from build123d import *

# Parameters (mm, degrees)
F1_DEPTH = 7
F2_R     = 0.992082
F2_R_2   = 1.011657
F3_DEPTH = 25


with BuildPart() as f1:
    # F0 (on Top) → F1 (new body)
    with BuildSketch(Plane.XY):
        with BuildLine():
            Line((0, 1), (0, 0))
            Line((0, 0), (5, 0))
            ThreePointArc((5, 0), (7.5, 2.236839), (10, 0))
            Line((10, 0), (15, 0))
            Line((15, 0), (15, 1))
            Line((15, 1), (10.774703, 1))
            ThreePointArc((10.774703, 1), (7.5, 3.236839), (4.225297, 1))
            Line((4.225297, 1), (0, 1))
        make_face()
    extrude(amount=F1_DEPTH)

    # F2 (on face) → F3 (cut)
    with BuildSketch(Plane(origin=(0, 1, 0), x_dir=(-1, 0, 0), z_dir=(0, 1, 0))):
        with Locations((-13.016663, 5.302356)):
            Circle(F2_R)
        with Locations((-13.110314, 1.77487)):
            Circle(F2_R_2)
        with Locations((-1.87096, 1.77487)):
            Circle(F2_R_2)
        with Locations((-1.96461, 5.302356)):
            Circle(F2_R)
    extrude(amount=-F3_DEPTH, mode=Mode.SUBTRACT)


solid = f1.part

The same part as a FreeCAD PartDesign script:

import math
import FreeCAD as App
import Part
import Sketcher

doc = App.newDocument("Part")
body = doc.addObject("PartDesign::Body", "Body")

# Sketch on XY plane
sketch1 = body.newObject("Sketcher::SketchObject", "Sketch")
sketch1.AttachmentSupport = (doc.getObject("XY_Plane"), [""])
sketch1.MapMode = "FlatFace"
sketch1.addGeometry(Part.LineSegment(App.Vector(0, 1, 0), App.Vector(0, 0, 0)), False)
sketch1.addGeometry(Part.LineSegment(App.Vector(0, 0, 0), App.Vector(5, 0, 0)), False)
sketch1.addGeometry(Part.ArcOfCircle(Part.Circle(App.Vector(7.5, -0.278641, 0), App.Vector(0, 0, 1), 2.51548), math.radians(6.359739), math.radians(173.640261)), False)
sketch1.addGeometry(Part.LineSegment(App.Vector(10, 0, 0), App.Vector(15, 0, 0)), False)
sketch1.addGeometry(Part.LineSegment(App.Vector(15, 0, 0), App.Vector(15, 1, 0)), False)
sketch1.addGeometry(Part.LineSegment(App.Vector(15, 1, 0), App.Vector(10.774703, 1, 0)), False)
sketch1.addGeometry(Part.ArcOfCircle(Part.Circle(App.Vector(7.5, -0.278642, 0), App.Vector(0, 0, 1), 3.515481), math.radians(21.328674), math.radians(158.671326)), False)
sketch1.addGeometry(Part.LineSegment(App.Vector(4.225297, 1, 0), App.Vector(0, 1, 0)), False)
sketch1.addConstraint(Sketcher.Constraint("Coincident", 0, 2, 1, 1))
sketch1.addConstraint(Sketcher.Constraint("Coincident", 1, 2, 2, 2))
sketch1.addConstraint(Sketcher.Constraint("Coincident", 2, 1, 3, 1))
sketch1.addConstraint(Sketcher.Constraint("Coincident", 3, 2, 4, 1))
sketch1.addConstraint(Sketcher.Constraint("Coincident", 4, 2, 5, 1))
sketch1.addConstraint(Sketcher.Constraint("Coincident", 5, 2, 6, 1))
sketch1.addConstraint(Sketcher.Constraint("Coincident", 6, 2, 7, 1))
sketch1.addConstraint(Sketcher.Constraint("Coincident", 7, 2, 0, 1))
sketch1.addConstraint(Sketcher.Constraint("Vertical", 0))
sketch1.addConstraint(Sketcher.Constraint("Horizontal", 1))
sketch1.addConstraint(Sketcher.Constraint("Horizontal", 3))
sketch1.addConstraint(Sketcher.Constraint("Vertical", 4))
sketch1.addConstraint(Sketcher.Constraint("Horizontal", 5))
sketch1.addConstraint(Sketcher.Constraint("Horizontal", 7))
sketch1.addConstraint(Sketcher.Constraint("Coincident", 0, 2, -1, 1))
sketch1.addConstraint(Sketcher.Constraint("Coincident", 6, 3, 2, 3))
sketch1.addConstraint(Sketcher.Constraint("PointOnObject", 2, 1, -1))
sketch1.addConstraint(Sketcher.Constraint("Horizontal", 5, 2, 6, 2))
sketch1.addConstraint(Sketcher.Constraint("Equal", 1, 3))
sketch1.addConstraint(Sketcher.Constraint("DistanceX", 1, 1, 1, 2, 5.0))
sketch1.addConstraint(Sketcher.Constraint("DistanceY", 0, 2, 0, 1, 1.0))
sketch1.addConstraint(Sketcher.Constraint("DistanceX", -1, 1, 2, 1, 10.0))
sketch1.addConstraint(Sketcher.Constraint("Radius", 2, 2.51548))
sketch1.addConstraint(Sketcher.Constraint("Radius", 6, 3.515481))
pad1 = body.newObject("PartDesign::Pad", "Pad")
pad1.Profile = sketch1
pad1.Length = 7

# Sketch on XZ plane
sketch2 = body.newObject("Sketcher::SketchObject", "Sketch001")
sketch2.AttachmentSupport = (doc.getObject("XZ_Plane"), [""])
sketch2.MapMode = "FlatFace"
sketch2.AttachmentOffset = App.Placement(App.Vector(0, 0, -1), App.Rotation())
sketch2.addGeometry(Part.Circle(App.Vector(13.016663, 5.302356, 0), App.Vector(0, 0, 1), 0.992082), False)
sketch2.addGeometry(Part.Circle(App.Vector(13.110314, 1.77487, 0), App.Vector(0, 0, 1), 1.011657), False)
sketch2.addGeometry(Part.Circle(App.Vector(1.87096, 1.77487, 0), App.Vector(0, 0, 1), 1.011657), False)
sketch2.addGeometry(Part.Circle(App.Vector(1.96461, 5.302356, 0), App.Vector(0, 0, 1), 0.992082), False)
sketch2.addConstraint(Sketcher.Constraint("Equal", 1, 2))
sketch2.addConstraint(Sketcher.Constraint("Equal", 0, 3))
sketch2.addConstraint(Sketcher.Constraint("Horizontal", 1, 3, 2, 3))
sketch2.addConstraint(Sketcher.Constraint("Horizontal", 0, 3, 3, 3))
sketch2.addConstraint(Sketcher.Constraint("Diameter", 0, 1.984164))
sketch2.addConstraint(Sketcher.Constraint("Diameter", 1, 2.023314))
sketch2.addConstraint(Sketcher.Constraint("DistanceY", -1, 1, 1, 3, 1.77487))
sketch2.addConstraint(Sketcher.Constraint("DistanceX", -1, 1, 2, 3, 1.87096))
sketch2.addConstraint(Sketcher.Constraint("DistanceX", -1, 1, 3, 3, 1.96461))
sketch2.addConstraint(Sketcher.Constraint("DistanceX", 0, 3, 1, 3, 0.093651))
sketch2.addConstraint(Sketcher.Constraint("DistanceX", -1, 1, 0, 3, 13.016663))
sketch2.addConstraint(Sketcher.Constraint("DistanceY", -1, 1, 0, 3, 5.302356))
pocket1 = body.newObject("PartDesign::Pocket", "Pocket")
pocket1.Profile = sketch2
pocket1.Length = 25
pocket1.Reversed = True

doc.recompute()
